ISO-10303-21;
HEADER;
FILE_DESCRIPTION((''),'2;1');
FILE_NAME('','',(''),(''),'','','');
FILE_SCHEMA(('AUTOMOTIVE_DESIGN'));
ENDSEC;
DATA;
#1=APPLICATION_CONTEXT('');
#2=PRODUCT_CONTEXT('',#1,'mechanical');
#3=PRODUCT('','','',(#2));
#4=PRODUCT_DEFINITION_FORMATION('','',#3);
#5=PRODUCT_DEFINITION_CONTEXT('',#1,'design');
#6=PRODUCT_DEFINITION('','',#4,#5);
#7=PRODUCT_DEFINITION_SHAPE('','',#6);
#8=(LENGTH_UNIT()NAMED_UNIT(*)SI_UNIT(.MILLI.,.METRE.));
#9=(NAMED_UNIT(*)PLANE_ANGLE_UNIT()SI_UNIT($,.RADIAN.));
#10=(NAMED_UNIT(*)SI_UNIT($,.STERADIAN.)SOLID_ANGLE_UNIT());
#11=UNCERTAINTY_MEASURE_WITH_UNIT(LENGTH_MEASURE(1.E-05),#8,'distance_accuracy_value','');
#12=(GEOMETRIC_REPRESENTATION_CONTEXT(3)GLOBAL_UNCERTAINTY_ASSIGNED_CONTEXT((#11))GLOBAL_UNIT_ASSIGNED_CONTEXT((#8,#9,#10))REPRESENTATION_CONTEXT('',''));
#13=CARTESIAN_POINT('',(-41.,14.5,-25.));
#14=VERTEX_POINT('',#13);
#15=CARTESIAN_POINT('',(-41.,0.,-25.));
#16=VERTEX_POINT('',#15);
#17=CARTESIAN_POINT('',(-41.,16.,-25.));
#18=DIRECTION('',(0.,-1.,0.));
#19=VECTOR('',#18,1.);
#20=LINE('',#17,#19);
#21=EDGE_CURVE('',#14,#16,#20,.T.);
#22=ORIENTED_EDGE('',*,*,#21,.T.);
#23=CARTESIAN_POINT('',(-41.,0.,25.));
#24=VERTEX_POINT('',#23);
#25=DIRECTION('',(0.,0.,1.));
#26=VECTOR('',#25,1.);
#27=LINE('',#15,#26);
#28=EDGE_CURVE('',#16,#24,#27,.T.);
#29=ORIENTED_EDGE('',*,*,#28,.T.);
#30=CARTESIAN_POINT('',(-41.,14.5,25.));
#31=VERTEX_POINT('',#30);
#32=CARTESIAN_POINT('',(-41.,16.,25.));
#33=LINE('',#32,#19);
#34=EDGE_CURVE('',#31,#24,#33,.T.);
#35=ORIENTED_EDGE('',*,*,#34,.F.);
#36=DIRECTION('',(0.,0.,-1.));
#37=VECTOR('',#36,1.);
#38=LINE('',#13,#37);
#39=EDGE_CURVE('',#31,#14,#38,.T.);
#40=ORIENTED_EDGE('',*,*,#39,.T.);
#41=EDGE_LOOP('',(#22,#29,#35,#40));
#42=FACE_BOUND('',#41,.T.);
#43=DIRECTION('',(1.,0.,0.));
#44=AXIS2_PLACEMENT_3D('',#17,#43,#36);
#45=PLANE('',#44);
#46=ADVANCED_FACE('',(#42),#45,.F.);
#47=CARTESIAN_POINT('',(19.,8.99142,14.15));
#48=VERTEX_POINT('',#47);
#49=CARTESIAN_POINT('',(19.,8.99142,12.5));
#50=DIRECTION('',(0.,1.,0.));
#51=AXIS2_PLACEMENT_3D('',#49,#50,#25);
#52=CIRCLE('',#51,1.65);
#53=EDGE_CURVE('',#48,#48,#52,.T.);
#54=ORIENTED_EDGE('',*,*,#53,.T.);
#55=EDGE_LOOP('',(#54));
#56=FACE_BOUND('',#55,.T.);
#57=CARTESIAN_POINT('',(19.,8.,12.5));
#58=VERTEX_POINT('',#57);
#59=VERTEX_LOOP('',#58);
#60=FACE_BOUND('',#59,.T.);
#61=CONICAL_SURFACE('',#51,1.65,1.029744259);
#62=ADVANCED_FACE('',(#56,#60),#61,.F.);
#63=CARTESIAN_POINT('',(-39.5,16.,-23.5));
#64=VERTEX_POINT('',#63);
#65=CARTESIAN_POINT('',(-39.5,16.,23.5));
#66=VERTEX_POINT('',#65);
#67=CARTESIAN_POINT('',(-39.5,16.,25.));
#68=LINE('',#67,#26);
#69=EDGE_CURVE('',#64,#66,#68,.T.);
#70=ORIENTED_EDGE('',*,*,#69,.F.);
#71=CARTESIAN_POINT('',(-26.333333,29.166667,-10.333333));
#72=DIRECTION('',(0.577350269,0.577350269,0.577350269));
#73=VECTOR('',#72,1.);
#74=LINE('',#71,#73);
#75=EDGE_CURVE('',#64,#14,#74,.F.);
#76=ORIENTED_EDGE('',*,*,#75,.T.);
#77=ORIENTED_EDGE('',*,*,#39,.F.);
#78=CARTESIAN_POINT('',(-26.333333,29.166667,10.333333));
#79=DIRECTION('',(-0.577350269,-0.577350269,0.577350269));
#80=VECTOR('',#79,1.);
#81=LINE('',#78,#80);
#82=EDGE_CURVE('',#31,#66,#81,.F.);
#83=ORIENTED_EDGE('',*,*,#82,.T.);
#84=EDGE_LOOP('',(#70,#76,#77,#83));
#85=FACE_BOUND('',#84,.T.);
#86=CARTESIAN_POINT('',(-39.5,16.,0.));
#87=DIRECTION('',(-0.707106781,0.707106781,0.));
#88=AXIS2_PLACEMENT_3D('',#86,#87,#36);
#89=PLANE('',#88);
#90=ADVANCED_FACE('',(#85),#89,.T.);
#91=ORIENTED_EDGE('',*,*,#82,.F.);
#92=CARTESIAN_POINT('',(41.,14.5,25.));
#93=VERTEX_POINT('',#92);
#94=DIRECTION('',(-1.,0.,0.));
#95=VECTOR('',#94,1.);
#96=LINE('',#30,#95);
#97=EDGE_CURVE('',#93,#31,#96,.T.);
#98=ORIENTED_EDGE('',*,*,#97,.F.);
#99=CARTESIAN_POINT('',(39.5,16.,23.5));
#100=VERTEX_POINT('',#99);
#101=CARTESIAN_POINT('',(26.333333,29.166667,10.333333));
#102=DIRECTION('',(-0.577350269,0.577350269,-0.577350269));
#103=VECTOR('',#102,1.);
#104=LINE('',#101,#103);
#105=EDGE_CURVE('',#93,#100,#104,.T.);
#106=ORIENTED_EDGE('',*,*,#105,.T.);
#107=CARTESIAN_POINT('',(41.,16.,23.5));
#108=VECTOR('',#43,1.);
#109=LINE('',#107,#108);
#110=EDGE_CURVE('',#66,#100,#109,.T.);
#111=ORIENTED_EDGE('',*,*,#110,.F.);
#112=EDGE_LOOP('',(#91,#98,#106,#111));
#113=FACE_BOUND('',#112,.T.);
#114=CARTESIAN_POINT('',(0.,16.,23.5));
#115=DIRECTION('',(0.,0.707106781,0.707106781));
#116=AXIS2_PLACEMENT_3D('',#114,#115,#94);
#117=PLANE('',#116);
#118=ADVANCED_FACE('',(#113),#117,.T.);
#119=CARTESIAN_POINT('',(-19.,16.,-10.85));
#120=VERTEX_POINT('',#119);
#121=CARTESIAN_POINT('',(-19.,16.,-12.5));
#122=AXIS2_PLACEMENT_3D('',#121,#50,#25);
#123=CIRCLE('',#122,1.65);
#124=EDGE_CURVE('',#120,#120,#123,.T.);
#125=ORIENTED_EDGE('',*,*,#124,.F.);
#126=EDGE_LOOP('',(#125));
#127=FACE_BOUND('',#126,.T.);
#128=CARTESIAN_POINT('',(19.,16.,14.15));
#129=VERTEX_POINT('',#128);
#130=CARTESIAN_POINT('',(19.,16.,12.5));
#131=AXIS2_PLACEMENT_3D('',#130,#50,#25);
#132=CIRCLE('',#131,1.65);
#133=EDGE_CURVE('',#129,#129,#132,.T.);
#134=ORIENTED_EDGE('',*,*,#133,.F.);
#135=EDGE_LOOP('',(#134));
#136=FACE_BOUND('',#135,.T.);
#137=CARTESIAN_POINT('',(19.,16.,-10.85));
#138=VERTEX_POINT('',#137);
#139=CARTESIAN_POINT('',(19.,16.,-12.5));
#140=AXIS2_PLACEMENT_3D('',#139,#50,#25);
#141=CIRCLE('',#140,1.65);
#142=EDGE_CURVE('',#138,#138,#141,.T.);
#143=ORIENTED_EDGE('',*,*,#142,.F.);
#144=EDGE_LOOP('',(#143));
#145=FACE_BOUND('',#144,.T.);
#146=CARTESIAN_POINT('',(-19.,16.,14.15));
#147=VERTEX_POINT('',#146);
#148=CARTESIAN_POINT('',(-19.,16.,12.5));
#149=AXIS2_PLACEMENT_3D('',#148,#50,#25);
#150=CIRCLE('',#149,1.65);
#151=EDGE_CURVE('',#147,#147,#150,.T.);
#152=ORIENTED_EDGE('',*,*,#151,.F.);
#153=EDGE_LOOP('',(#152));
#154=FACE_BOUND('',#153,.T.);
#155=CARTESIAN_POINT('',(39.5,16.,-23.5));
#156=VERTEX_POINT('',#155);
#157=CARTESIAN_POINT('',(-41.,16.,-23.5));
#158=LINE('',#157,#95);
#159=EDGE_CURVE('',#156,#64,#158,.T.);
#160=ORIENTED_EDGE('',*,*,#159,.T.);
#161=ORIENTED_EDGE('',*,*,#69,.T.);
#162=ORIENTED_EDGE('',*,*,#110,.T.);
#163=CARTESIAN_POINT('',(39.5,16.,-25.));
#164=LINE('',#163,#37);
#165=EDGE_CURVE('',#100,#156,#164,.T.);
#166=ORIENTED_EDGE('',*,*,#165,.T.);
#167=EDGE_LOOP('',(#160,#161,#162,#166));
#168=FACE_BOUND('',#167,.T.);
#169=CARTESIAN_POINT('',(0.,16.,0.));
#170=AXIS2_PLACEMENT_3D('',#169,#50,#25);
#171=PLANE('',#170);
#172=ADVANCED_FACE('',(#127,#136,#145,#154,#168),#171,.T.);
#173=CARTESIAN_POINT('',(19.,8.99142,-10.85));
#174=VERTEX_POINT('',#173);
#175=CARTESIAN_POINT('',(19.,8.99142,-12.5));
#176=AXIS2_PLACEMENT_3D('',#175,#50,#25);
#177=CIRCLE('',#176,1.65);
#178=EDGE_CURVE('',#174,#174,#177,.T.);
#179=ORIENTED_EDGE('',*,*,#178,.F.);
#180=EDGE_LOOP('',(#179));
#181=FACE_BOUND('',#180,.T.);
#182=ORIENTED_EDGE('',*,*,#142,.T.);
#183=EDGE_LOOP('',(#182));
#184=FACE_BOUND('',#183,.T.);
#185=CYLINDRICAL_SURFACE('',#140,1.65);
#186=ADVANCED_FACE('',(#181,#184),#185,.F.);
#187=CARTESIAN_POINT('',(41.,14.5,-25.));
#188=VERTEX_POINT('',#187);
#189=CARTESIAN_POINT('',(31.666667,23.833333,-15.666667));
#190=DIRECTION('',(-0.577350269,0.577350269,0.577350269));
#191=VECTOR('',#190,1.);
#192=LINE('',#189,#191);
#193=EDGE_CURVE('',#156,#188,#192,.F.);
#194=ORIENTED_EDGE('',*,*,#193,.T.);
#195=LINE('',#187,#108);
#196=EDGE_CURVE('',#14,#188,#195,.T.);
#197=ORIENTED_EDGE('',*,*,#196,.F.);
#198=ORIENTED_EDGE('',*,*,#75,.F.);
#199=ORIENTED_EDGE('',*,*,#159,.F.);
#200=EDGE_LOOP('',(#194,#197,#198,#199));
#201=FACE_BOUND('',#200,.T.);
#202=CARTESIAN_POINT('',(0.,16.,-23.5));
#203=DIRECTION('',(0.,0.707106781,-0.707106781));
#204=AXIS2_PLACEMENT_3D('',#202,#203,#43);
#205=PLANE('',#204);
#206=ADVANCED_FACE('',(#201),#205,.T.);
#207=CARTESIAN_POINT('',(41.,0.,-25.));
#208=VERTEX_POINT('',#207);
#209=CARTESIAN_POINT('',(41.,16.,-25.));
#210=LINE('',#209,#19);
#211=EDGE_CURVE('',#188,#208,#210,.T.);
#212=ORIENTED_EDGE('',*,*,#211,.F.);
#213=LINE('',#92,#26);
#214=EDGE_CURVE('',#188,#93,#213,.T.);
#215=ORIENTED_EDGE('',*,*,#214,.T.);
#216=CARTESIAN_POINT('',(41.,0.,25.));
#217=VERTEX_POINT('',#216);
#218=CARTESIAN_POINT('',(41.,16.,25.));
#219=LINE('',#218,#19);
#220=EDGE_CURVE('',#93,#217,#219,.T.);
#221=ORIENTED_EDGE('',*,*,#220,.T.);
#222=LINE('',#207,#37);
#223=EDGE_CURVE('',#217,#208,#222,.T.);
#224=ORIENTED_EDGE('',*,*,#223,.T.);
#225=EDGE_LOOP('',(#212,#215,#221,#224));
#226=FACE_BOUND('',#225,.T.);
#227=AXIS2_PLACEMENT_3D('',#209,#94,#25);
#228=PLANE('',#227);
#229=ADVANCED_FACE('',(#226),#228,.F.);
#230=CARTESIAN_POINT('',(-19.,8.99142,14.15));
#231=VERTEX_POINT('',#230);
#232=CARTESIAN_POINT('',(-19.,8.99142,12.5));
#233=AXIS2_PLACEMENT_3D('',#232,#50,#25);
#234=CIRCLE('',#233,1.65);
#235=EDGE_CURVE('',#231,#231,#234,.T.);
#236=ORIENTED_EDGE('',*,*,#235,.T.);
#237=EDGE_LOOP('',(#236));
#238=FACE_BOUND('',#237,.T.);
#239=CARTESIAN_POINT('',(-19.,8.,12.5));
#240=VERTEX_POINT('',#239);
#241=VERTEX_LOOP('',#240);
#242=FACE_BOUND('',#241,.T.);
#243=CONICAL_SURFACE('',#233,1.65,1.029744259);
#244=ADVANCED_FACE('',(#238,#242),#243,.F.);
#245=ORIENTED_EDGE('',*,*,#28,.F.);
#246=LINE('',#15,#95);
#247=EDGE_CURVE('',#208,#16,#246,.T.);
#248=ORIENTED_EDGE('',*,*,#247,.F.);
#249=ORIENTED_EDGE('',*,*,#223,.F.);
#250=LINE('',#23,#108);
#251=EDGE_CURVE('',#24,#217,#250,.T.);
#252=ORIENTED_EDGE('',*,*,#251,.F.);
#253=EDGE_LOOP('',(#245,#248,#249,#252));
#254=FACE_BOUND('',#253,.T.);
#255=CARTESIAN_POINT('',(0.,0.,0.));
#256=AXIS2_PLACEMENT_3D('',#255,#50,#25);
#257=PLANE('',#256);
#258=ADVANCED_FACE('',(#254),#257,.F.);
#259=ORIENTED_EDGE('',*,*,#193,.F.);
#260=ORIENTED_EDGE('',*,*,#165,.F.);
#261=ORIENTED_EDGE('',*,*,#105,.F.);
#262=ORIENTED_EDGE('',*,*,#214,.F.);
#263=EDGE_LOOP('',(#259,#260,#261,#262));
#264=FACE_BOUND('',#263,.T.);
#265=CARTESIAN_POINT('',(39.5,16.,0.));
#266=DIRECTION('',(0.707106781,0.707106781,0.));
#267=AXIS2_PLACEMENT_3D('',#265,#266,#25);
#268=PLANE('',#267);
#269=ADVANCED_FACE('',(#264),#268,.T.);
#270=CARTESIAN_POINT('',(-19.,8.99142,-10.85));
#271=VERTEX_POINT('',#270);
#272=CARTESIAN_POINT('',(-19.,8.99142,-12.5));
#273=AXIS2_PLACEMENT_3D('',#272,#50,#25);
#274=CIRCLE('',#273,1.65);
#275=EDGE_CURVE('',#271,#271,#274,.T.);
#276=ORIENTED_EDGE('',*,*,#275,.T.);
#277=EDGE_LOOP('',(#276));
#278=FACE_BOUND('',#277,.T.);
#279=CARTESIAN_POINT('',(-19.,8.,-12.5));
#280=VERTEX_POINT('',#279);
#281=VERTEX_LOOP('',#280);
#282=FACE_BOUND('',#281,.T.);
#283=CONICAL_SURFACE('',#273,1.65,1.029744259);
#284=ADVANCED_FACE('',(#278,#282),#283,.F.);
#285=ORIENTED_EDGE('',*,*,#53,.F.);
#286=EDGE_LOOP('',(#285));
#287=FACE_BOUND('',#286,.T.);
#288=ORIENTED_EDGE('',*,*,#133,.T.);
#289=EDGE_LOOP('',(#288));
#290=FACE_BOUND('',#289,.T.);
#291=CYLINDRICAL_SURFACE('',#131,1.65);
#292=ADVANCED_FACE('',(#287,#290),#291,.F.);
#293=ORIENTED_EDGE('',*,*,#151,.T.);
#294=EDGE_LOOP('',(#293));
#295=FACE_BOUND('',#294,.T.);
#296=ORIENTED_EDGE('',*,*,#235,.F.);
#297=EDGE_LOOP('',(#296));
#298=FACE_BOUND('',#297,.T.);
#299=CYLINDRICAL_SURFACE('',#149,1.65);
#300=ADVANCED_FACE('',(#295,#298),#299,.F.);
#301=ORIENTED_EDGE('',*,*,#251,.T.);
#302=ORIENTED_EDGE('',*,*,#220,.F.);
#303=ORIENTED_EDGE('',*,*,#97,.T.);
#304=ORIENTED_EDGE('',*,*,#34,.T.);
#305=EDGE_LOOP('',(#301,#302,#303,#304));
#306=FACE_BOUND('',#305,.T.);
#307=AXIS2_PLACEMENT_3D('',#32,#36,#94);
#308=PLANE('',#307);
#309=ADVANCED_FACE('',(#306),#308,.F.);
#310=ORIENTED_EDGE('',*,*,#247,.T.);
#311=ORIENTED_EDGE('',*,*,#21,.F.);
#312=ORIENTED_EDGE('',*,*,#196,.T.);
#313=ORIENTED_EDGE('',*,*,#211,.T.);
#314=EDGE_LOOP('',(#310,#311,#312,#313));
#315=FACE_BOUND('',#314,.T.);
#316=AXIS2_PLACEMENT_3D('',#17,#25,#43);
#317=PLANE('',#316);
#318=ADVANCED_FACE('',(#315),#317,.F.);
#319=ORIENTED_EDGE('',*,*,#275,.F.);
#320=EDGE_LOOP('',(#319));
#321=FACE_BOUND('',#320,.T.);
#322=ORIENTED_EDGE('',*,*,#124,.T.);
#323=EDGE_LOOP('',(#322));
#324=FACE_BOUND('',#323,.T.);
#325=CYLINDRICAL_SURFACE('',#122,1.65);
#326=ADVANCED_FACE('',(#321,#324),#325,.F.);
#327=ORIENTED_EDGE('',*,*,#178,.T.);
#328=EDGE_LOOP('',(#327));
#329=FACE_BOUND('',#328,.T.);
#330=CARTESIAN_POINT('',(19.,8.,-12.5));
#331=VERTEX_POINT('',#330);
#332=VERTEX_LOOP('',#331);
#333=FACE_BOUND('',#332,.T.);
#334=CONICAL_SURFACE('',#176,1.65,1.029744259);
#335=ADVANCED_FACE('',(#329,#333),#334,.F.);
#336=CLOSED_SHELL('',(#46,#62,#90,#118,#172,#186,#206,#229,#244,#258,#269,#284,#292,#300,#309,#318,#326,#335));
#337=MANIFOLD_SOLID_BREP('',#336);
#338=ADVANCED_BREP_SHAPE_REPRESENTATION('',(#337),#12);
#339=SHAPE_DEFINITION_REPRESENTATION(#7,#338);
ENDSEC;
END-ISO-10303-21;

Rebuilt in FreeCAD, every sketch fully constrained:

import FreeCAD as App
import Part
import Sketcher

V = App.Vector


def edges_at(feature, points):
    """Names of the edges that pass closest to the given points."""
    edges = feature.Shape.Edges
    near = lambda p: min(range(len(edges)), key=lambda i: edges[i].distToShape(Part.Vertex(*p))[0])
    return sorted({f"Edge{near(p) + 1}" for p in points})


def add_polygon(sketch, points):
    """Adds a closed chain of lines whose ends are joined by coincident constraints."""
    first, n = sketch.GeometryCount, len(points)
    for a, b in zip(points, points[1:] + points[:1]):
        sketch.addGeometry(Part.LineSegment(App.Vector(*a, 0), App.Vector(*b, 0)), False)
    for i in range(n):
        sketch.addConstraint(Sketcher.Constraint("Coincident", first + i, 2, first + (i + 1) % n, 1))

doc = App.newDocument("Part")
body = doc.addObject("PartDesign::Body", "Body")

sketch1 = body.newObject("Sketcher::SketchObject", "Sketch")
sketch1.AttachmentSupport = (doc.getObject("XZ_Plane"), [""])
sketch1.MapMode = "FlatFace"
add_polygon(sketch1, [(-41, -25), (-41, 25), (41, 25), (41, -25)])
sketch1.addConstraint([
    Sketcher.Constraint("Vertical", 0),
    Sketcher.Constraint("Horizontal", 1),
    Sketcher.Constraint("Vertical", 2),
    Sketcher.Constraint("Horizontal", 3),
    Sketcher.Constraint("Symmetric", 0, 2, 2, 2, -1, 1),
    Sketcher.Constraint("DistanceX", 1, 1, 1, 2, 82.0),
    Sketcher.Constraint("DistanceY", 0, 1, 0, 2, 50.0),
])
pad1 = body.newObject("PartDesign::Pad", "Pad")
pad1.Profile = sketch1
pad1.Length = 16
pad1.Reversed = True

sketch2 = body.newObject("Sketcher::SketchObject", "Sketch001")
sketch2.AttachmentSupport = (doc.getObject("XZ_Plane"), [""])
sketch2.MapMode = "FlatFace"
sketch2.AttachmentOffset = App.Placement(V(0, 0, -16), App.Rotation())
sketch2.addGeometry([
    Part.Circle(V(-19, -12.5, 0), V(0, 0, 1), 1.6),
    Part.Circle(V(19, -12.5, 0), V(0, 0, 1), 1.6),
    Part.Circle(V(19, 12.5, 0), V(0, 0, 1), 1.6),
    Part.Circle(V(-19, 12.5, 0), V(0, 0, 1), 1.6),
], False)
sketch2.addConstraint([
    Sketcher.Constraint("Equal", 0, 1),
    Sketcher.Constraint("Equal", 1, 2),
    Sketcher.Constraint("Equal", 2, 3),
    Sketcher.Constraint("Symmetric", 0, 3, 2, 3, -1, 1),
    Sketcher.Constraint("Symmetric", 1, 3, 3, 3, -1, 1),
    Sketcher.Constraint("Symmetric", 0, 3, 1, 3, -2),
    Sketcher.Constraint("Diameter", 0, 3.3),
    Sketcher.Constraint("DistanceX", 0, 3, -1, 1, 19.0),
    Sketcher.Constraint("DistanceY", 1, 3, 2, 3, 25.0),
])
doc.recompute()
hole = body.newObject("PartDesign::Hole", "Hole")
hole.Profile = sketch2
hole.ThreadType = "None"
hole.Diameter = 3.3
hole.DepthType = "Dimension"
hole.Depth = 7.00858
hole.DrillPoint = "Angled"
hole.DrillPointAngle = 118
hole.Reversed = True
doc.recompute()

chamfer = body.newObject("PartDesign::Chamfer", "Chamfer")
chamfer.Base = (hole, edges_at(hole, [
    (-41, 16, 0),
    (0, 16, 25),
    (41, 16, 0),
    (0, 16, -25),
]))
chamfer.Size = 1.5

doc.recompute()
